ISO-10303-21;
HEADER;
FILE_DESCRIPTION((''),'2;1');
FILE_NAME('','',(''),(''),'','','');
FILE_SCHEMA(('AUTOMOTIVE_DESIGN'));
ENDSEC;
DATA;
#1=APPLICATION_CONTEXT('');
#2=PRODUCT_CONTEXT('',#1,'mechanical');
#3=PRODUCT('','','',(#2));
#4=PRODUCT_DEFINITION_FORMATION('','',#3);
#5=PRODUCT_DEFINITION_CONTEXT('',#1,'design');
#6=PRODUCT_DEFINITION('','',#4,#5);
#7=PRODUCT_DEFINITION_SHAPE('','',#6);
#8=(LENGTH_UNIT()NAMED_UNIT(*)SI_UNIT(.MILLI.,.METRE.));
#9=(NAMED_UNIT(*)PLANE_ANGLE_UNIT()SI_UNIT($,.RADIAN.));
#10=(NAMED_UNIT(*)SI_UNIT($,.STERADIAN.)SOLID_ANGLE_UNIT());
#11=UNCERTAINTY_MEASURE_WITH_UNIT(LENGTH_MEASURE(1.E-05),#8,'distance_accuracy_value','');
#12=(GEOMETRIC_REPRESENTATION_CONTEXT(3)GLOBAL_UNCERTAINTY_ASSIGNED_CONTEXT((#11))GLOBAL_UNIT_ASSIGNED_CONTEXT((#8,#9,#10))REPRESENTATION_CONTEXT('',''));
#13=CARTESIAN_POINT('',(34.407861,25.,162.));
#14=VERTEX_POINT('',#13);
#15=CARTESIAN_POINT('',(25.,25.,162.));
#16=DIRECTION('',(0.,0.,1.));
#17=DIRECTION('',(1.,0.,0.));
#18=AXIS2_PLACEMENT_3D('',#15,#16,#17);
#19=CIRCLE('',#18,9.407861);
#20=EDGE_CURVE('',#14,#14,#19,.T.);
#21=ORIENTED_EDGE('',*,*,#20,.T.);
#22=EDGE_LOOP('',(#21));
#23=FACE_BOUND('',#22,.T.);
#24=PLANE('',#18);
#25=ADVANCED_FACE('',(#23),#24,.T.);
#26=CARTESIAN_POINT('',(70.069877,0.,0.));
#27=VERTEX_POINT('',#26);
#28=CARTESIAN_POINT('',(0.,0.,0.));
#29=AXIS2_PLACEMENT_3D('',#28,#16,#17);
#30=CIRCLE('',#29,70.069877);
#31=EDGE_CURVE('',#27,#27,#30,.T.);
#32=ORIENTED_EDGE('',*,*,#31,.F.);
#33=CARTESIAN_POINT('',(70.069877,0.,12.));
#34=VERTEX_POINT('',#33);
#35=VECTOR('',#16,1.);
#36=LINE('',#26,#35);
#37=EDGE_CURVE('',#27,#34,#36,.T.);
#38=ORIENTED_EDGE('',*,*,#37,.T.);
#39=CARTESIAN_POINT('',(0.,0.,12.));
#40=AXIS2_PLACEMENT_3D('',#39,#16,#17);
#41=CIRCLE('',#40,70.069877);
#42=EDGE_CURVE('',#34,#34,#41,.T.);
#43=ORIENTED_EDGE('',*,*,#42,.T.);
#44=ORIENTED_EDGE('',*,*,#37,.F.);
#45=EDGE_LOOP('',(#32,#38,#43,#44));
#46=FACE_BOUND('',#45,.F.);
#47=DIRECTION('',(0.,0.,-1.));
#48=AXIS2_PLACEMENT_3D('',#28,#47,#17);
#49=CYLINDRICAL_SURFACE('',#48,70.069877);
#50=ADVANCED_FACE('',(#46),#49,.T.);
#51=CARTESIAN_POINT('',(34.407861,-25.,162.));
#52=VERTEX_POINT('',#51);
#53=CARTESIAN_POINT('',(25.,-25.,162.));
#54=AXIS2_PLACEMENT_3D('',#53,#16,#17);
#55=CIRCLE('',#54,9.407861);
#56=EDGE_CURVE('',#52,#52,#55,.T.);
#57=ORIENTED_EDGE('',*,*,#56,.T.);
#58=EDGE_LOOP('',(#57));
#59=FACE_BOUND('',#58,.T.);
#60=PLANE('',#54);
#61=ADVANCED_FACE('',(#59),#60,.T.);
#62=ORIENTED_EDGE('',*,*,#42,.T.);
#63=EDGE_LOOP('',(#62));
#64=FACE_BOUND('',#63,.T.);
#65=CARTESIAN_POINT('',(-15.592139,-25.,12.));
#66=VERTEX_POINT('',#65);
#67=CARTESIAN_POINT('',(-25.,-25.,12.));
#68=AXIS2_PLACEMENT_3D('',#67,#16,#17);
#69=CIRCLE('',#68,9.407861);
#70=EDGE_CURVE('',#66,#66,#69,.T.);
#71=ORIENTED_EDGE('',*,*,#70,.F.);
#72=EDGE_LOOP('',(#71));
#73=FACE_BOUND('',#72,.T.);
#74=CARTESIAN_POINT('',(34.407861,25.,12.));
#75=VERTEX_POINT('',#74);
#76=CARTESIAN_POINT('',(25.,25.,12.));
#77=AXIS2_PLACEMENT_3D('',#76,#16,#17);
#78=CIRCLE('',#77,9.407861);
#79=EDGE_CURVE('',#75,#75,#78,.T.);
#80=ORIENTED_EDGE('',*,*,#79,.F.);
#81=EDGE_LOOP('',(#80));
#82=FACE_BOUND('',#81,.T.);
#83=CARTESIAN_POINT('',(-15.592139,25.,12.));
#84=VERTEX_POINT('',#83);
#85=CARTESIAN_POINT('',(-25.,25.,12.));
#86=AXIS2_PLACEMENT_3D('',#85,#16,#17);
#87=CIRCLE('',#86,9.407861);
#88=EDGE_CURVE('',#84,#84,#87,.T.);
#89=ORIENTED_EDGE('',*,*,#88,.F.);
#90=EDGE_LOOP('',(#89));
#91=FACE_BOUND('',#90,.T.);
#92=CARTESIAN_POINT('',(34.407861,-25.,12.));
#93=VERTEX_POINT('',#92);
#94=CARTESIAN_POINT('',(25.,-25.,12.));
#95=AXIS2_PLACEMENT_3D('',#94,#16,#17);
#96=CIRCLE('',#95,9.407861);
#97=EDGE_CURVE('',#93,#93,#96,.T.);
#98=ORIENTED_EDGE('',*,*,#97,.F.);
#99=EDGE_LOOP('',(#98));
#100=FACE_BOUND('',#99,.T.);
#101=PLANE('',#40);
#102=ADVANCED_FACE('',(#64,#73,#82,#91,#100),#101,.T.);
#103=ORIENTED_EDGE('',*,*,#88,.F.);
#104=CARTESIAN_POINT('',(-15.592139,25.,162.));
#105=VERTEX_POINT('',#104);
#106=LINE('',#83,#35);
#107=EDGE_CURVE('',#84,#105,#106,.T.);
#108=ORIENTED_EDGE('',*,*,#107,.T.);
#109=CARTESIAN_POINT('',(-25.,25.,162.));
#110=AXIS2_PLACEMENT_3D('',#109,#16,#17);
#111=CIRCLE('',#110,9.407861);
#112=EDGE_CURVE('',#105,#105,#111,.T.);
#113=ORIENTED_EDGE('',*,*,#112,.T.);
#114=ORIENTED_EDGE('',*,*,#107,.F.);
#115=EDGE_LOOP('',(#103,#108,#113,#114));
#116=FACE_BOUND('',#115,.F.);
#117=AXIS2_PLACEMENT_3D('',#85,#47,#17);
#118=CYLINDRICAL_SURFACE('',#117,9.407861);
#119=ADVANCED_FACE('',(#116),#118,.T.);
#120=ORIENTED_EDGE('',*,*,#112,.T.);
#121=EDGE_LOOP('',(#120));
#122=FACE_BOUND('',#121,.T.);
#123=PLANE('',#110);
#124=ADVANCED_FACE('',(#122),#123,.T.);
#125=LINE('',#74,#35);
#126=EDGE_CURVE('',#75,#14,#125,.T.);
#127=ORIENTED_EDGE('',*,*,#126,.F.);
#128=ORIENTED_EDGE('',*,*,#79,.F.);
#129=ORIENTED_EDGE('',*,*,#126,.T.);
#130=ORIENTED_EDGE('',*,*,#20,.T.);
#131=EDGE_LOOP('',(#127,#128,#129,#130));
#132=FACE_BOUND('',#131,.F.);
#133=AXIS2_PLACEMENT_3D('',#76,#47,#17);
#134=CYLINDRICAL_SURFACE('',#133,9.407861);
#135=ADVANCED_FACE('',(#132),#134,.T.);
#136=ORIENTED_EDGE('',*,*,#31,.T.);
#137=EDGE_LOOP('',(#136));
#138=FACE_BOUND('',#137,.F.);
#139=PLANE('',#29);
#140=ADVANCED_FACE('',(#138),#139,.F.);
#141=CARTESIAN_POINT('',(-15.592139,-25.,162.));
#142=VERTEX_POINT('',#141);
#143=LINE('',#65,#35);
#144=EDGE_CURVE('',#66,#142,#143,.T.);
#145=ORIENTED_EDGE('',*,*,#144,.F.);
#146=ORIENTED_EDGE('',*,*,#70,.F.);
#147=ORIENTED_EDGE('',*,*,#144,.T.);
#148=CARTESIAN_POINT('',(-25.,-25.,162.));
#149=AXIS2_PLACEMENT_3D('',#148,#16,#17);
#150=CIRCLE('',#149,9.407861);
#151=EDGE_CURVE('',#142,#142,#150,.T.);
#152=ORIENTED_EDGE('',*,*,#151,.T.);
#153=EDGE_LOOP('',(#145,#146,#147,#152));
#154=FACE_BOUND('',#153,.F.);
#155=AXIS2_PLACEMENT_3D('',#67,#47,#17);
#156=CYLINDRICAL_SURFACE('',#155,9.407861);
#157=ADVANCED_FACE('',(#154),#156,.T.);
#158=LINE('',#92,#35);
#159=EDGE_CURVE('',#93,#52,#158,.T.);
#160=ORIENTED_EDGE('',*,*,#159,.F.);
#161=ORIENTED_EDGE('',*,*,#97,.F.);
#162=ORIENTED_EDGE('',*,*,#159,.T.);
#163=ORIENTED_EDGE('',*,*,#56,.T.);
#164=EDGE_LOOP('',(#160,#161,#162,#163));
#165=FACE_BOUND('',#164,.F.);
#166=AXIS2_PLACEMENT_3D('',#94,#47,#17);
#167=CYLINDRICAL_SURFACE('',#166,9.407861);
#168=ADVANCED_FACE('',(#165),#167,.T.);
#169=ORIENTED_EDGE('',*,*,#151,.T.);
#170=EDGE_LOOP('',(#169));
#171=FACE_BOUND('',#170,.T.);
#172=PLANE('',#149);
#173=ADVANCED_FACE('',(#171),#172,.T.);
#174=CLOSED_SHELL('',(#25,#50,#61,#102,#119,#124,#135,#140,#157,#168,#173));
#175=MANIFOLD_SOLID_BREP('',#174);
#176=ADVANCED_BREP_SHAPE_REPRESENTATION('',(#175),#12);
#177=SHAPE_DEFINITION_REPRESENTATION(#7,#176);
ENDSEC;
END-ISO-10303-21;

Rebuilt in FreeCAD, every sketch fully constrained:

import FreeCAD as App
import Part
import Sketcher
Q = App.Units.Quantity

doc = App.newDocument("Part")
params = doc.addObject("Spreadsheet::Sheet", "Params")
for row, (alias, value) in enumerate([
    ("pad1_length", "12 mm"),
    ("pad2_length", "150 mm"),
], start=1):
    params.set(f"A{row}", alias)
    params.set(f"B{row}", "=" + value)
    params.setAlias(f"B{row}", alias)

body = doc.addObject("PartDesign::Body", "Body")

# Sketch on XY plane
sketch1 = body.newObject("Sketcher::SketchObject", "Sketch")
sketch1.AttachmentSupport = (doc.getObject("XY_Plane"), [""])
sketch1.MapMode = "FlatFace"
sketch1.addGeometry(Part.Circle(App.Vector(0, 0, 0), App.Vector(0, 0, 1), 70), False)
sketch1.addConstraint([
    Sketcher.Constraint("Coincident", 0, 3, -1, 1),
    Sketcher.Constraint("Diameter", 0, Q("140.139754 mm")),
])
pad1 = body.newObject("PartDesign::Pad", "Pad")
pad1.Profile = sketch1
pad1.setExpression("Length", "Params.pad1_length")

# Sketch on XY plane
sketch2 = body.newObject("Sketcher::SketchObject", "Sketch001")
sketch2.AttachmentSupport = (doc.getObject("XY_Plane"), [""])
sketch2.MapMode = "FlatFace"
sketch2.AttachmentOffset = App.Placement(App.Vector(0, 0, 12), App.Rotation())
sketch2.addGeometry([
    Part.Circle(App.Vector(-25, 25, 0), App.Vector(0, 0, 1), 9),
    Part.Circle(App.Vector(25, 25, 0), App.Vector(0, 0, 1), 9),
    Part.Circle(App.Vector(25, -25, 0), App.Vector(0, 0, 1), 9),
    Part.Circle(App.Vector(-25, -25, 0), App.Vector(0, 0, 1), 9),
], False)
sketch2.addConstraint([
    Sketcher.Constraint("Equal", 0, 1),
    Sketcher.Constraint("Equal", 1, 2),
    Sketcher.Constraint("Equal", 2, 3),
    Sketcher.Constraint("Symmetric", 0, 3, 2, 3, -1, 1),
    Sketcher.Constraint("Symmetric", 1, 3, 3, 3, -1, 1),
    Sketcher.Constraint("Symmetric", 0, 3, 1, 3, -2),
    Sketcher.Constraint("DistanceX", 0, 3, -1, 1, Q("25 mm")),
    Sketcher.Constraint("DistanceY", -1, 1, 0, 3, Q("25 mm")),
    Sketcher.Constraint("Diameter", 0, Q("18.815722 mm")),
])
pad2 = body.newObject("PartDesign::Pad", "Pad001")
pad2.Profile = sketch2
pad2.setExpression("Length", "Params.pad2_length")

doc.recompute()
